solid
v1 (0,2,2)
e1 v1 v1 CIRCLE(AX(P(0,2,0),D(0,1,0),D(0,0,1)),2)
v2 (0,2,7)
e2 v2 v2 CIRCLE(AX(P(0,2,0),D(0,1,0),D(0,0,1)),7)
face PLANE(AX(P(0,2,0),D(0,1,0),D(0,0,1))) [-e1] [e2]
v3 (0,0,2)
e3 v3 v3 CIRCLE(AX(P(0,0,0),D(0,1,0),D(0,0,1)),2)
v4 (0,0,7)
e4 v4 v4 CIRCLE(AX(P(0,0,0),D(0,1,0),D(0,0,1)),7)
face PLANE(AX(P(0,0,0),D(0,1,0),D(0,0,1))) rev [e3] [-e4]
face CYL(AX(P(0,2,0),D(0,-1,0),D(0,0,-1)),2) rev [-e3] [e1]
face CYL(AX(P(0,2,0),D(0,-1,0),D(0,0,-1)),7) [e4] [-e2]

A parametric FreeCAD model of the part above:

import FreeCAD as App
import Part
import Sketcher

V = App.Vector

doc = App.newDocument("Part")
body = doc.addObject("PartDesign::Body", "Body")

# Sketch on XZ plane
sketch1 = doc.addObject("Sketcher::SketchObject", "Sketch")
body.addObject(sketch1)
sketch1.AttachmentSupport = (doc.XZ_Plane, [""])
sketch1.MapMode = "FlatFace"
sketch1.addGeometry([
    Part.Circle(V(0, 0, 0), V(0, 0, 1), 7),
    Part.Circle(V(0, 0, 0), V(0, 0, 1), 2),
], False)
sketch1.addConstraint([
    Sketcher.Constraint("Coincident", 0, 3, -1, 1),
    Sketcher.Constraint("Coincident", 1, 3, -1, 1),
    Sketcher.Constraint("Diameter", 0, 14.0),
    Sketcher.Constraint("Diameter", 1, 4.0),
])
pad1 = doc.addObject("PartDesign::Pad", "Pad")
body.addObject(pad1)
pad1.Profile = sketch1
pad1.Length = 2
pad1.Reversed = True

doc.recompute()
